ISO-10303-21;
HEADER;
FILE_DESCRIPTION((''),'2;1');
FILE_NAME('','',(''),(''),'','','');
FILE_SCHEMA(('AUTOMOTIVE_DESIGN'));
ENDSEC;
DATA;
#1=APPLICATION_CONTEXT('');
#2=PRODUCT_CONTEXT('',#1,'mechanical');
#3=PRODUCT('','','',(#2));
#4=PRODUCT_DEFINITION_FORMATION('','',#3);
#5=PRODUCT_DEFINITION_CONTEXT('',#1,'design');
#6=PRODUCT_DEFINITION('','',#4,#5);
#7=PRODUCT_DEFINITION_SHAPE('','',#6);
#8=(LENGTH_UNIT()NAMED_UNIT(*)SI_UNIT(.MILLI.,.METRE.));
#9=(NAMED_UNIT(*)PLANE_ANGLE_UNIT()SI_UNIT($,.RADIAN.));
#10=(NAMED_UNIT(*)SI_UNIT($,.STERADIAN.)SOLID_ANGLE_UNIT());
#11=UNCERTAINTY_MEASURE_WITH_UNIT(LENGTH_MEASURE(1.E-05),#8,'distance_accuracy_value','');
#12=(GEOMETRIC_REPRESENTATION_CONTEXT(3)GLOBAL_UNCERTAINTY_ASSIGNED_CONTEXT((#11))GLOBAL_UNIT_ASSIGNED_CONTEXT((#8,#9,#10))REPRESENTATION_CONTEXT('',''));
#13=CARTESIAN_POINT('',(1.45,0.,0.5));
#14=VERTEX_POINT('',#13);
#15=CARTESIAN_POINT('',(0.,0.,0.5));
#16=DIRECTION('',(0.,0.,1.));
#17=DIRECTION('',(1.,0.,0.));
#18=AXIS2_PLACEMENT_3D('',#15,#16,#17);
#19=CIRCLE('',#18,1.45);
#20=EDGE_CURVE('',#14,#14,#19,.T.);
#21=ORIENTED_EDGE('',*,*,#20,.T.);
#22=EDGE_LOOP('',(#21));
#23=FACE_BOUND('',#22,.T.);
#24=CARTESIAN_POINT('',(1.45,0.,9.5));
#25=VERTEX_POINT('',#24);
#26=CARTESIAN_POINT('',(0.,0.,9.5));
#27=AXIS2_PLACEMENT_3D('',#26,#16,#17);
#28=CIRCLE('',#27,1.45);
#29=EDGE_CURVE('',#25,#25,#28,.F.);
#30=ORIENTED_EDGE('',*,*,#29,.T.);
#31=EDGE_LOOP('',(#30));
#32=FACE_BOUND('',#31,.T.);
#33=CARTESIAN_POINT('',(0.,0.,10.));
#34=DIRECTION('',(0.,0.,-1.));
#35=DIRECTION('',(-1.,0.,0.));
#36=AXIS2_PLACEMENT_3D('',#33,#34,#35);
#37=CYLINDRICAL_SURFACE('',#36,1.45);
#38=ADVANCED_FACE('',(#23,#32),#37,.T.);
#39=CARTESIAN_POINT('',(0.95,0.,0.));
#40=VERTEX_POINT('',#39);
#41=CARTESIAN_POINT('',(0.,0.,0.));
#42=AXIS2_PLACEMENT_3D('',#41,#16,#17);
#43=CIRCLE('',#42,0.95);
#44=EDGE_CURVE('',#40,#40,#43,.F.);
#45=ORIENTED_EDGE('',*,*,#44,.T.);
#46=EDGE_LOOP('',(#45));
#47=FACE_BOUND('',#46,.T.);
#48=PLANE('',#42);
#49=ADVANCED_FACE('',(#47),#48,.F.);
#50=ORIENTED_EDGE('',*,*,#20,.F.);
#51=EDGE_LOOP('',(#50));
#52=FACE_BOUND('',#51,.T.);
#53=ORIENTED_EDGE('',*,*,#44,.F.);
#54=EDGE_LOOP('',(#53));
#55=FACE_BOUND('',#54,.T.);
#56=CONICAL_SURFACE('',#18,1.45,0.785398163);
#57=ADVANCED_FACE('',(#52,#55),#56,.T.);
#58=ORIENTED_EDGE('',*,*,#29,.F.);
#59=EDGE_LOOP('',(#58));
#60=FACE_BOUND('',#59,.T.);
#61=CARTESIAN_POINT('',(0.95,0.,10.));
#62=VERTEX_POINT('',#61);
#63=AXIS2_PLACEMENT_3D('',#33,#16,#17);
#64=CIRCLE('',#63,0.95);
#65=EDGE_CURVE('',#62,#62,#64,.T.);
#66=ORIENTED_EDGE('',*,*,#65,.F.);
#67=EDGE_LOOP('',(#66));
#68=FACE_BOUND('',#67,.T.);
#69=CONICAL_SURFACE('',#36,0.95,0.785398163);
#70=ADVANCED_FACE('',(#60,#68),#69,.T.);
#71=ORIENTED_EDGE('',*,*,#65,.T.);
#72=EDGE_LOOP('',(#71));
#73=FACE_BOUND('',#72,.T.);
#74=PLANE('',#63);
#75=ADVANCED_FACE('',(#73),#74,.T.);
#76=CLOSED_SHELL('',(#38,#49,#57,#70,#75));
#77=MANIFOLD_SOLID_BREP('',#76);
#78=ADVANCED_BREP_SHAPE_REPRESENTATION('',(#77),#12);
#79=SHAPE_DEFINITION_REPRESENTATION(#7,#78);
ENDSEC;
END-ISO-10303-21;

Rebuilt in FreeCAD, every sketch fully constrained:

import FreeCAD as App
import Part
import Sketcher

V = App.Vector
Q = App.Units.Quantity


def edges_at(feature, points):
    """Names of the edges that pass closest to the given points."""
    edges = feature.Shape.Edges
    near = lambda p: min(range(len(edges)), key=lambda i: edges[i].distToShape(Part.Vertex(*p))[0])
    return sorted({f"Edge{near(p) + 1}" for p in points})

doc = App.newDocument("Part")
body = doc.addObject("PartDesign::Body", "Body")

sketch1 = doc.addObject("Sketcher::SketchObject", "Sketch")
body.addObject(sketch1)
sketch1.AttachmentSupport = (doc.XY_Plane, [""])
sketch1.MapMode = "FlatFace"
sketch1.addGeometry(Part.Circle(V(0, 0, 0), V(0, 0, 1), 1.4), False)
sketch1.addConstraint(Sketcher.Constraint("Coincident", 0, 3, -1, 1))
sketch1.addConstraint(Sketcher.Constraint("Diameter", 0, Q("2.9 mm")))
pad1 = doc.addObject("PartDesign::Pad", "Pad")
body.addObject(pad1)
pad1.Profile = sketch1
pad1.Length = 10
doc.recompute()

chamfer = doc.addObject("PartDesign::Chamfer", "Chamfer")
body.addObject(chamfer)
chamfer.Base = (pad1, edges_at(pad1, [(-1.45, 0, 0), (-1.45, 0, 10)]))
chamfer.Size = 0.5

doc.recompute()
